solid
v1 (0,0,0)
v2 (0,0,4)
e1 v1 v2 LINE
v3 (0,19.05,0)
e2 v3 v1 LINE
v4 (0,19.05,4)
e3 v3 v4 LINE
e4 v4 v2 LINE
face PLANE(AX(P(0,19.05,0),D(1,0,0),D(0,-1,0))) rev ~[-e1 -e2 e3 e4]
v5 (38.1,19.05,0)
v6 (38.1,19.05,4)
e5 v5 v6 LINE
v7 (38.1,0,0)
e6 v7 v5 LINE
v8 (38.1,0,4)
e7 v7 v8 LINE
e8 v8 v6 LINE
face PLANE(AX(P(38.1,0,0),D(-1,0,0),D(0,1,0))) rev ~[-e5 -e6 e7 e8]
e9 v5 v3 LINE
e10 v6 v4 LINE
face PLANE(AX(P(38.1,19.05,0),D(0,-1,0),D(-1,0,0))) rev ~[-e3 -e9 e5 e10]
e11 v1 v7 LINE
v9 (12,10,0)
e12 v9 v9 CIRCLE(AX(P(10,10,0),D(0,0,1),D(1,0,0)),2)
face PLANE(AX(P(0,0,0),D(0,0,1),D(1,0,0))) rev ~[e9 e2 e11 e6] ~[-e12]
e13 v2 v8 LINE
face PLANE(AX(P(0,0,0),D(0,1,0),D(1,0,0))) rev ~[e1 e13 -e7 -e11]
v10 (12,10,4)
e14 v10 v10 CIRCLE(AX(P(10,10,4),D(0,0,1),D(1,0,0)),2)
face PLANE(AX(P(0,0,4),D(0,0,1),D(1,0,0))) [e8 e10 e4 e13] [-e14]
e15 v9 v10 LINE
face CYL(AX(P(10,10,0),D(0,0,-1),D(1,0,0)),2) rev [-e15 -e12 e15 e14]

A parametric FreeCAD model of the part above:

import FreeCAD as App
import Part
import Sketcher
from FreeCAD import Vector
Q = App.Units.Quantity

doc = App.newDocument("Part")
body = doc.addObject("PartDesign::Body", "Body")

# Sketch on XY plane
sketch1 = body.newObject("Sketcher::SketchObject", "Sketch")
sketch1.AttachmentSupport = (doc.getObject("XY_Plane"), [""])
sketch1.MapMode = "FlatFace"
sketch1.addGeometry([
    Part.LineSegment(Vector(0, 19.05, 0), Vector(0, 0, 0)),  # 0
    Part.LineSegment(Vector(0, 0, 0), Vector(38.1, 0, 0)),  # 1
    Part.LineSegment(Vector(38.1, 0, 0), Vector(38.1, 19.05, 0)),  # 2
    Part.LineSegment(Vector(38.1, 19.05, 0), Vector(0, 19.05, 0)),  # 3
    Part.Circle(Vector(10, 10, 0), Vector(0, 0, 1), 2),  # 4
], False)
sketch1.addConstraint([
    Sketcher.Constraint("Coincident", 0, 2, 1, 1),
    Sketcher.Constraint("Coincident", 1, 2, 2, 1),
    Sketcher.Constraint("Coincident", 2, 2, 3, 1),
    Sketcher.Constraint("Coincident", 3, 2, 0, 1),
    Sketcher.Constraint("Vertical", 0),
    Sketcher.Constraint("Horizontal", 1),
    Sketcher.Constraint("Vertical", 2),
    Sketcher.Constraint("Horizontal", 3),
    Sketcher.Constraint("Coincident", 0, 2, -1, 1),
    Sketcher.Constraint("DistanceX", 1, 1, 1, 2, Q("1.5 in")),
    Sketcher.Constraint("DistanceY", 0, 2, 0, 1, Q("0.75 in")),
    Sketcher.Constraint("Diameter", 4, Q("4 mm")),
    Sketcher.Constraint("DistanceX", -1, 1, 4, 3, Q("0.3937 in")),
    Sketcher.Constraint("DistanceY", -1, 1, 4, 3, Q("0.3937 in")),
])
pad1 = body.newObject("PartDesign::Pad", "Pad")
pad1.Profile = sketch1
pad1.Length = 4

doc.recompute()
